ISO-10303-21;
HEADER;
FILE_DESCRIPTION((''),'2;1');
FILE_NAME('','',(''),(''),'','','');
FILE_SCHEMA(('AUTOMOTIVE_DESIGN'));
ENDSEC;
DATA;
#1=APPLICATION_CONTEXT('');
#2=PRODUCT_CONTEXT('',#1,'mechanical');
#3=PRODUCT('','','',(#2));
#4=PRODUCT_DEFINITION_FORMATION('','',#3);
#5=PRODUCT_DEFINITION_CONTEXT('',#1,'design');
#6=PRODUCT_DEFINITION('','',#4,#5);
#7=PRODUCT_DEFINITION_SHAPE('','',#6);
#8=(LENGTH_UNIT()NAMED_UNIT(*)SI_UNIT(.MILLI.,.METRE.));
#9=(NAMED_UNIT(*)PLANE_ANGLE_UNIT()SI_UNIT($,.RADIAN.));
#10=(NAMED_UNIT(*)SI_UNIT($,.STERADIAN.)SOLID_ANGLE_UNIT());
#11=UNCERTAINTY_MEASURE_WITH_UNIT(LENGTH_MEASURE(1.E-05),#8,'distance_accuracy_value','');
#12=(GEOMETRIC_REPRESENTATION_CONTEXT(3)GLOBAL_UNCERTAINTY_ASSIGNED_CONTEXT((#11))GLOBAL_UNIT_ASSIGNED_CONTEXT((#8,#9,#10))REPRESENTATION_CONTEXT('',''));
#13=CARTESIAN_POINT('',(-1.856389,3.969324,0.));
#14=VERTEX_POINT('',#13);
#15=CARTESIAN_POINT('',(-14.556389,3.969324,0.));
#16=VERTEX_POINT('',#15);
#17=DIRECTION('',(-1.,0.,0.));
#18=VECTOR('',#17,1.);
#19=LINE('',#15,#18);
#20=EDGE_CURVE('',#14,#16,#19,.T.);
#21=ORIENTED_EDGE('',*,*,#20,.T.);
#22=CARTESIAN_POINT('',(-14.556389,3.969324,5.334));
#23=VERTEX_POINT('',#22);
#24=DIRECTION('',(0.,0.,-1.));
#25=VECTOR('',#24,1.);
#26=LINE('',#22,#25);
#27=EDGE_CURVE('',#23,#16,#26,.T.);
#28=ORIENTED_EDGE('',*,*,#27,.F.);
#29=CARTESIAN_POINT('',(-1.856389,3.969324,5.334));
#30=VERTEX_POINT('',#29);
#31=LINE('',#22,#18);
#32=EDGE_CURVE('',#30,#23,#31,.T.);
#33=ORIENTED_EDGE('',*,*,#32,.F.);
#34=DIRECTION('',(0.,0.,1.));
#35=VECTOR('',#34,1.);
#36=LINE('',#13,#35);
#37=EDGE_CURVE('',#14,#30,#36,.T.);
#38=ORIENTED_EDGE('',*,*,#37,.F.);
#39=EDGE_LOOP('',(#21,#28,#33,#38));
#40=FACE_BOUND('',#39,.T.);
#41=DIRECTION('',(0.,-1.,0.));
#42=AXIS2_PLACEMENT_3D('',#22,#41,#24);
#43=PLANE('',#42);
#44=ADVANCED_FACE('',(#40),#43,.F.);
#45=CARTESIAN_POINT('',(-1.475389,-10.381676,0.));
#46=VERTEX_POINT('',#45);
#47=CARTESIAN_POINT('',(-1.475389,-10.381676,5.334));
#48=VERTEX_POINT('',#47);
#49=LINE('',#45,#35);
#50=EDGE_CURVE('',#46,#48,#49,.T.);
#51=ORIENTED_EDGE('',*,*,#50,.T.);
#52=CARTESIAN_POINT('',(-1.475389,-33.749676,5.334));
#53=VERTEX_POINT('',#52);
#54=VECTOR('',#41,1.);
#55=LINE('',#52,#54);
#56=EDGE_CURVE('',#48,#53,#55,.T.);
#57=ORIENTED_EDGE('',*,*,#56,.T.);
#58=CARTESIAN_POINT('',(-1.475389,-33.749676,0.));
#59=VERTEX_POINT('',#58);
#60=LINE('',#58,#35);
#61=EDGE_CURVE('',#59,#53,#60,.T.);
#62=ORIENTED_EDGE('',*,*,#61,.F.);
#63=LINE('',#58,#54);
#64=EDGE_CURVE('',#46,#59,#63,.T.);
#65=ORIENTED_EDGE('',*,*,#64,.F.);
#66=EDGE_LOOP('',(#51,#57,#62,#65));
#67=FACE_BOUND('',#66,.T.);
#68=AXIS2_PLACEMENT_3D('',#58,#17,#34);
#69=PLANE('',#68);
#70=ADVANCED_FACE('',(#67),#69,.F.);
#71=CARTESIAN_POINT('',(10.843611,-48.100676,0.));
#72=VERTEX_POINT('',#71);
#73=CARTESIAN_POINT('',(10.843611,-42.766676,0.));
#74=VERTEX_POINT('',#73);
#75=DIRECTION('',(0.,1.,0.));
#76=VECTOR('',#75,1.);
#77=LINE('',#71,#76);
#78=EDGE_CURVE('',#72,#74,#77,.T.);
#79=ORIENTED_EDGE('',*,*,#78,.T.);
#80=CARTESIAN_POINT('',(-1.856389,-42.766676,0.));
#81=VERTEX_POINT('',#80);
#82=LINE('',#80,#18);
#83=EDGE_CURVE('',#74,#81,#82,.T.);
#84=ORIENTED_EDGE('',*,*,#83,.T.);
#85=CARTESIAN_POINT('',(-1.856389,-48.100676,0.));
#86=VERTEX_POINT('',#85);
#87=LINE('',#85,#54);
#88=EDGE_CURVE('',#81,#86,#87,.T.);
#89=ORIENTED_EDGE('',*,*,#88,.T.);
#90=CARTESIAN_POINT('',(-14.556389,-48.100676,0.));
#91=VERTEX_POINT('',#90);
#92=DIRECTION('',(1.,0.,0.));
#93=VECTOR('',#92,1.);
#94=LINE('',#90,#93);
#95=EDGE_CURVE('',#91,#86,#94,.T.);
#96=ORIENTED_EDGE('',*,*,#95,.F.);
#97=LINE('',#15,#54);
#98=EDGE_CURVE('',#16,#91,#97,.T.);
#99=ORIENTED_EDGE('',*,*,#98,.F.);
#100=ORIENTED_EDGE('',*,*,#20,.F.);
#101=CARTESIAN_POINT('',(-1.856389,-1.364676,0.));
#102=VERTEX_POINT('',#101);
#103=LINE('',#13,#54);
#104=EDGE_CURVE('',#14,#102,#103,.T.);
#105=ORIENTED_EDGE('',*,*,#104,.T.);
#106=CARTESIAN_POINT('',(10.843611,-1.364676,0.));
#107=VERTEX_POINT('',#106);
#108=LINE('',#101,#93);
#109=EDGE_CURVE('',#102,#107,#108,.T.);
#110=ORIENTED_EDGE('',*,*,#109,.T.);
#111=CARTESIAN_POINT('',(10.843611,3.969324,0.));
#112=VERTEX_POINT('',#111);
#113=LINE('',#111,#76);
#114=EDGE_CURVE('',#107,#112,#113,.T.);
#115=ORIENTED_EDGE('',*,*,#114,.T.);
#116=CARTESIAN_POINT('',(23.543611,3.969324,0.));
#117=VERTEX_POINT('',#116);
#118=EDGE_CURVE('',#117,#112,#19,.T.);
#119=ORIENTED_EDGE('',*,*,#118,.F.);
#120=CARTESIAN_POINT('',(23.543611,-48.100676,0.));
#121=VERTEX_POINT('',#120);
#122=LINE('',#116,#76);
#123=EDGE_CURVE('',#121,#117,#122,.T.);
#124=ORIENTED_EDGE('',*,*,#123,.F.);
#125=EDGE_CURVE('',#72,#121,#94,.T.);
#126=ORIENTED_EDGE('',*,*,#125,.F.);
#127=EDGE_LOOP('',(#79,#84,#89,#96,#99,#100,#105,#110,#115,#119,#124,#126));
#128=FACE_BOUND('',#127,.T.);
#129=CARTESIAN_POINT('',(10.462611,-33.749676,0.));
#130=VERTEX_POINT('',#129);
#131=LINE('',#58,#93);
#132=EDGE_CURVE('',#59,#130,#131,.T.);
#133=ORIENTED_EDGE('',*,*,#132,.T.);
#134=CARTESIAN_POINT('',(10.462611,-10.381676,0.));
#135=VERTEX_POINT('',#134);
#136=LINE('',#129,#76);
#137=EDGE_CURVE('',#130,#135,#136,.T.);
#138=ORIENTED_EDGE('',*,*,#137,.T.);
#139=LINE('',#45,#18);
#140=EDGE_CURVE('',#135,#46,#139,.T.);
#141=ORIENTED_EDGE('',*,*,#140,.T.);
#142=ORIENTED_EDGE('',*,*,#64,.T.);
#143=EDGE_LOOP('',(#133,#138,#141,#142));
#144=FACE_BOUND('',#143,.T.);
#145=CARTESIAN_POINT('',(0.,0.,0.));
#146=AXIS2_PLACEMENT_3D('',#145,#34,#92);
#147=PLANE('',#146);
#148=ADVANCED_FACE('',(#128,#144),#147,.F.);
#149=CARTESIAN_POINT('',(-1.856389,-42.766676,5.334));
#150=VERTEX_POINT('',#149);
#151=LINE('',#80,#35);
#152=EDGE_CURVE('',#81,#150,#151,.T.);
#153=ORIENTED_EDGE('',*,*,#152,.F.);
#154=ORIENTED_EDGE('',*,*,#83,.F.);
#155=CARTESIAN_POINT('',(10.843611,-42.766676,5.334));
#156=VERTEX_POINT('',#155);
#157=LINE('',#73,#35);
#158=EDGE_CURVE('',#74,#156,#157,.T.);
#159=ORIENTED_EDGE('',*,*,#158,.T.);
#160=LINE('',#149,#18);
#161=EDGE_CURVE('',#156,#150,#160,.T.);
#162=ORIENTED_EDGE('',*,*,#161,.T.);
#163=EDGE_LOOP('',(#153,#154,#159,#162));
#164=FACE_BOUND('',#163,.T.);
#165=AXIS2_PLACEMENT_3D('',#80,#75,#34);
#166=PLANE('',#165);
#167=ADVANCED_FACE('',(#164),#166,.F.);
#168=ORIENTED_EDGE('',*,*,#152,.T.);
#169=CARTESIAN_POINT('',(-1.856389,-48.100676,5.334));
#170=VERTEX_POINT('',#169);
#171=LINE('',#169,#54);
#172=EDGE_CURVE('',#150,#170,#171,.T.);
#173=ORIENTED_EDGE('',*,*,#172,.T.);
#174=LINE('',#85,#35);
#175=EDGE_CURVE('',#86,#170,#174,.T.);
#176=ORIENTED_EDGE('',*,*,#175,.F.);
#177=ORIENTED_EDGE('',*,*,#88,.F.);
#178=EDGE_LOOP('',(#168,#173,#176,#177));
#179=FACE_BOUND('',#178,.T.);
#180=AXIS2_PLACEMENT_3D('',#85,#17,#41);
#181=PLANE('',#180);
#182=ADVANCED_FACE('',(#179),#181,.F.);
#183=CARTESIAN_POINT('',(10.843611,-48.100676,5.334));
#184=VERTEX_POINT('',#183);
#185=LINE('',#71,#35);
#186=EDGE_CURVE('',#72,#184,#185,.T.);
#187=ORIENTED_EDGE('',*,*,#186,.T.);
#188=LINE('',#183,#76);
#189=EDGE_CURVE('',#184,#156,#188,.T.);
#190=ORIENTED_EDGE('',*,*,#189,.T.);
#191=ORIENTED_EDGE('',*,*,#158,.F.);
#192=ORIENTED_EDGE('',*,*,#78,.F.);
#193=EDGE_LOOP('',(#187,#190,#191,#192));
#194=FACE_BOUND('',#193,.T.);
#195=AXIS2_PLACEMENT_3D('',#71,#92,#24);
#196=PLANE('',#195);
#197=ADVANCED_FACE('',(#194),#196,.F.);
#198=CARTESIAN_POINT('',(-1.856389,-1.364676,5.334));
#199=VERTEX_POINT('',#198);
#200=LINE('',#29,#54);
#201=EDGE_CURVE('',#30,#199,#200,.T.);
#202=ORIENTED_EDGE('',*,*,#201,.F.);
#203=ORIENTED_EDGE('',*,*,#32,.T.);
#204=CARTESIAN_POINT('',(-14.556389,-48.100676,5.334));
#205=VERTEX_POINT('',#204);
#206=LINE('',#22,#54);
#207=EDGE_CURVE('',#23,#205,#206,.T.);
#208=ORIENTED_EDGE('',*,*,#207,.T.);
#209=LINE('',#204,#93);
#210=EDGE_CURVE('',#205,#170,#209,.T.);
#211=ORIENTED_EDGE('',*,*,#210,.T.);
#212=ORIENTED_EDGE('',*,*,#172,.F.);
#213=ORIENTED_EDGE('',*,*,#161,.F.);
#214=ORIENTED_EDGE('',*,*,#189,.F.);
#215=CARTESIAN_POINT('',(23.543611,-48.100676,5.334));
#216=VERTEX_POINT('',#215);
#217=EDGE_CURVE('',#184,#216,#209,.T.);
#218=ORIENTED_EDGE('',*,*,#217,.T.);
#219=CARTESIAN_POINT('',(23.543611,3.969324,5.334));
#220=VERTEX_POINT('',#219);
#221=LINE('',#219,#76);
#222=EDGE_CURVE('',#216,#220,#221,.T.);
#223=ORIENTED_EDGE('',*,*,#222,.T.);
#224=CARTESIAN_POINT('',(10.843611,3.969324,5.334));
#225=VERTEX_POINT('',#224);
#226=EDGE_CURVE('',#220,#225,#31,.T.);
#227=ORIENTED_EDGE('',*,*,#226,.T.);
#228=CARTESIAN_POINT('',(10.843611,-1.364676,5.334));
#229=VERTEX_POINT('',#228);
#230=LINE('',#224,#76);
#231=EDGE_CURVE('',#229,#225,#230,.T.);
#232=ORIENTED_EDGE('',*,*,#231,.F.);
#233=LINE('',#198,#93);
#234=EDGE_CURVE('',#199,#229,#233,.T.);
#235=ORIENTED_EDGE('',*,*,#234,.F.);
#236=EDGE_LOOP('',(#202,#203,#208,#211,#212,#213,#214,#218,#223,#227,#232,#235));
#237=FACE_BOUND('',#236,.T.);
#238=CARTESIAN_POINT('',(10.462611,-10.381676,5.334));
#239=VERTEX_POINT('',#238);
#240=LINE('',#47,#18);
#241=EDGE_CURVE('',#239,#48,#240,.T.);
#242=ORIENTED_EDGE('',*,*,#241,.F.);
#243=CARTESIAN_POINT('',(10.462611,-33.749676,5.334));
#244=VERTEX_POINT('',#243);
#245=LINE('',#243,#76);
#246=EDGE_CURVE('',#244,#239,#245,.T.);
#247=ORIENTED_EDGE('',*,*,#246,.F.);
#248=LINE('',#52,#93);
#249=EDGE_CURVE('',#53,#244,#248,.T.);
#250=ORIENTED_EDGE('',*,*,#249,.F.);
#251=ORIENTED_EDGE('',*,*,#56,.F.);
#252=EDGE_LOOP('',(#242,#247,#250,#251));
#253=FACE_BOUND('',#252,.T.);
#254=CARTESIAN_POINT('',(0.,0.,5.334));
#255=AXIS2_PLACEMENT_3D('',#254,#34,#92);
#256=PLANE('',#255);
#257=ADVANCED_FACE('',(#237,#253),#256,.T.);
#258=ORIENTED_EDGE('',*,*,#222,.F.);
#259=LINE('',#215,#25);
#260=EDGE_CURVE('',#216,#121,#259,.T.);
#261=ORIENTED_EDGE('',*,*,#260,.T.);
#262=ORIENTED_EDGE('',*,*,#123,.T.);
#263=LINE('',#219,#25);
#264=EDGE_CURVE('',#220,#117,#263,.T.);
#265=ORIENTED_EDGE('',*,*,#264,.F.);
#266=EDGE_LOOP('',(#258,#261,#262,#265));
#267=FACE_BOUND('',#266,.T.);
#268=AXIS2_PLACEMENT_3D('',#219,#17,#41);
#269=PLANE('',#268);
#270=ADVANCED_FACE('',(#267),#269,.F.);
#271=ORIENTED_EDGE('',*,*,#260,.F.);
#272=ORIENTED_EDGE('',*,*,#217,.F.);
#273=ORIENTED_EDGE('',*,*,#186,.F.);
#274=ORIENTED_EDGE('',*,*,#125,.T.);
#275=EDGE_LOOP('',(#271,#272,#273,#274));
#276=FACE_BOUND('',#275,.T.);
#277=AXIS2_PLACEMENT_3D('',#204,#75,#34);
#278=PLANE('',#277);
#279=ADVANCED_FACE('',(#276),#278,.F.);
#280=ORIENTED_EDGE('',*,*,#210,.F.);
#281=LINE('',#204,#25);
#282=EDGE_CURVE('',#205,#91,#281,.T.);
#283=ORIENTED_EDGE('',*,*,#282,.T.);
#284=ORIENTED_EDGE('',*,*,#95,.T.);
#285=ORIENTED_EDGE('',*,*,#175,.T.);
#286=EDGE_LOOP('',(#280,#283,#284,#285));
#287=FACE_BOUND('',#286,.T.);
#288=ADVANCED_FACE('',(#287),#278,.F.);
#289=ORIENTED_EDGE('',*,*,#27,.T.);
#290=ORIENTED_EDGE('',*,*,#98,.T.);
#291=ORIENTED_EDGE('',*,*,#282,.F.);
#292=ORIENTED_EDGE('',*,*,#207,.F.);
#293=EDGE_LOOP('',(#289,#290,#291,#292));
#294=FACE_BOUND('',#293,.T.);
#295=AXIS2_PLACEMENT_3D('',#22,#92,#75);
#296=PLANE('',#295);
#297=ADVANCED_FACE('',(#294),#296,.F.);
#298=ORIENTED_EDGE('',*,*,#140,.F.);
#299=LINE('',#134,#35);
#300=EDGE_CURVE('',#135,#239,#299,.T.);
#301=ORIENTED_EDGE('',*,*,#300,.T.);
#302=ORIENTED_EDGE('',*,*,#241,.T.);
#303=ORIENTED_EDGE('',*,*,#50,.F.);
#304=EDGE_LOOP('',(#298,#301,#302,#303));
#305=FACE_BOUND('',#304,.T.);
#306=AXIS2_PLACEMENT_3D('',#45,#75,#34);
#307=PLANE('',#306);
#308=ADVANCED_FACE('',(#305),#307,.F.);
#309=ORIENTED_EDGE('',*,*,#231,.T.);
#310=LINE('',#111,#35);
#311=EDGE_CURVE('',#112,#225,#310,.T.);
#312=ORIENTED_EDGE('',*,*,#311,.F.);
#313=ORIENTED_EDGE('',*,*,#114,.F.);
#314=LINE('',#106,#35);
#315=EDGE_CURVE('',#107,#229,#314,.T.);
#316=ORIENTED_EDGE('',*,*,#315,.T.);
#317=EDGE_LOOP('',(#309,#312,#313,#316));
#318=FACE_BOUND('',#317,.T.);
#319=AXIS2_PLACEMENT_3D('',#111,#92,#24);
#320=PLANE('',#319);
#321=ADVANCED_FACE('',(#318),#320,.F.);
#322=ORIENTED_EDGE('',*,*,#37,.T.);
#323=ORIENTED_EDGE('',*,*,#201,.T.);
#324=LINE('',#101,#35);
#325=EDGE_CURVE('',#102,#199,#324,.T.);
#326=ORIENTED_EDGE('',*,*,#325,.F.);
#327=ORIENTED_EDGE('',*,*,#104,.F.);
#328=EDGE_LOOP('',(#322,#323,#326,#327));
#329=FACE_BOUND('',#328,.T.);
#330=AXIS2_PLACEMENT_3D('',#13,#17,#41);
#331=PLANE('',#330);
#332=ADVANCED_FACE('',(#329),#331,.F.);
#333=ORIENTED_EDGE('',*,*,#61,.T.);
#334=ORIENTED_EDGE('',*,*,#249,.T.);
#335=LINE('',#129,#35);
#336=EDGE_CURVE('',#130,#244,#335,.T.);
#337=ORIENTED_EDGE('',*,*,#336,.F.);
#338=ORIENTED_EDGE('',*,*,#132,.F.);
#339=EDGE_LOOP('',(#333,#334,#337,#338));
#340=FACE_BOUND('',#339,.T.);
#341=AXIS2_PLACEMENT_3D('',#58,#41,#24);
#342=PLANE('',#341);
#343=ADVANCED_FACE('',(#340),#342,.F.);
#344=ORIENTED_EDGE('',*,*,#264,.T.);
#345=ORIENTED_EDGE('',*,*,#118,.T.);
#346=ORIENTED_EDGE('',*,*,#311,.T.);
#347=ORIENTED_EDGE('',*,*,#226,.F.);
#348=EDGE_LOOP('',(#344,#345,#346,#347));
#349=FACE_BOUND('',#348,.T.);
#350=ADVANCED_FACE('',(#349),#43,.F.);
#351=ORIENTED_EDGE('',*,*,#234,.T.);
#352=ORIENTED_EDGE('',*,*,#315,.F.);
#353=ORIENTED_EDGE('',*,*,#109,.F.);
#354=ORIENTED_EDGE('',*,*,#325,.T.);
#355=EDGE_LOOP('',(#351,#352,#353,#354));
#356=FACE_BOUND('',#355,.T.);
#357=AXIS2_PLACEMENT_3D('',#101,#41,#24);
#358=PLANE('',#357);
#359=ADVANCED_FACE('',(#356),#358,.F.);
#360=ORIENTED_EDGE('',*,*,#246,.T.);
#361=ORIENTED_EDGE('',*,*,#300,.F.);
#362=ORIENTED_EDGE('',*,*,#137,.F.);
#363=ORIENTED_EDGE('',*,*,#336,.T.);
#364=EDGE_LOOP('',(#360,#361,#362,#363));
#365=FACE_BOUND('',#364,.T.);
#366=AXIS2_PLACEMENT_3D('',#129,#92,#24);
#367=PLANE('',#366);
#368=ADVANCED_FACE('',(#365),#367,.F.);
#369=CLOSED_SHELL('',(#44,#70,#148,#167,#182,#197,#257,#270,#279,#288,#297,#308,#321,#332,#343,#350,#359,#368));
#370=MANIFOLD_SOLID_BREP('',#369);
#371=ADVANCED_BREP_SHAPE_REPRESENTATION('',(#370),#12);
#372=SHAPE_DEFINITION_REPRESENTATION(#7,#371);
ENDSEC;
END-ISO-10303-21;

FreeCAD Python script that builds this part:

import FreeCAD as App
import Part
import Sketcher
Q = App.Units.Quantity


def add_polygon(sketch, points):
    """Adds a closed chain of lines whose ends are joined by coincident constraints."""
    first, n = sketch.GeometryCount, len(points)
    for a, b in zip(points, points[1:] + points[:1]):
        sketch.addGeometry(Part.LineSegment(App.Vector(*a, 0), App.Vector(*b, 0)), False)
    for i in range(n):
        sketch.addConstraint(Sketcher.Constraint("Coincident", first + i, 2, first + (i + 1) % n, 1))

doc = App.newDocument("Part")
body = doc.addObject("PartDesign::Body", "Body")

# Sketch on XY plane
sketch1 = doc.addObject("Sketcher::SketchObject", "Sketch")
body.addObject(sketch1)
sketch1.AttachmentSupport = (doc.XY_Plane, [""])
sketch1.MapMode = "FlatFace"
add_polygon(sketch1, [(-15, 4), (-15, -48), (24, -48), (24, 4)])  # lines 0-3
sketch1.addConstraint([
    Sketcher.Constraint("Vertical", 0),
    Sketcher.Constraint("Horizontal", 1),
    Sketcher.Constraint("Vertical", 2),
    Sketcher.Constraint("Horizontal", 3),
    Sketcher.Constraint("DistanceX", 1, 1, 1, 2, Q("1.5 in")),
    Sketcher.Constraint("DistanceY", 0, 2, 0, 1, Q("2.05 in")),
    Sketcher.Constraint("DistanceX", 0, 2, -1, 1, 14.556389),
    Sketcher.Constraint("DistanceY", 0, 2, -1, 1, 48.100676),
])
pad1 = doc.addObject("PartDesign::Pad", "Pad")
body.addObject(pad1)
pad1.Profile = sketch1
pad1.Length = Q("0.21 in")

# Sketch on XY plane
sketch2 = doc.addObject("Sketcher::SketchObject", "Sketch001")
body.addObject(sketch2)
sketch2.AttachmentSupport = (doc.XY_Plane, [""])
sketch2.MapMode = "FlatFace"
sketch2.AttachmentOffset = App.Placement(App.Vector(0, 0, 0.21 * 25.4), App.Rotation())
add_polygon(sketch2, [(-1, -10), (-1, -34), (10, -34), (10, -10)])  # lines 0-3
sketch2.addConstraint([
    Sketcher.Constraint("Vertical", 0),
    Sketcher.Constraint("Horizontal", 1),
    Sketcher.Constraint("Vertical", 2),
    Sketcher.Constraint("Horizontal", 3),
    Sketcher.Constraint("DistanceX", 1, 1, 1, 2, Q("0.47 in")),
    Sketcher.Constraint("DistanceY", 0, 2, 0, 1, Q("0.92 in")),
    Sketcher.Constraint("DistanceX", 0, 2, -1, 1, 1.475389),
    Sketcher.Constraint("DistanceY", 0, 2, -1, 1, 33.749676),
])
pocket1 = doc.addObject("PartDesign::Pocket", "Pocket")
body.addObject(pocket1)
pocket1.Profile = sketch2
pocket1.Type = "ThroughAll"

# Sketch on XY plane
sketch3 = doc.addObject("Sketcher::SketchObject", "Sketch002")
body.addObject(sketch3)
sketch3.AttachmentSupport = (doc.XY_Plane, [""])
sketch3.MapMode = "FlatFace"
sketch3.AttachmentOffset = App.Placement(App.Vector(0, 0, 0.21 * 25.4), App.Rotation())
add_polygon(sketch3, [(-2, 4), (-2, -1), (11, -1), (11, 4)])  # lines 0-3
add_polygon(sketch3, [(-2, -43), (-2, -48), (11, -48), (11, -43)])  # lines 4-7
sketch3.addConstraint([
    Sketcher.Constraint("Vertical", 0),
    Sketcher.Constraint("Horizontal", 1),
    Sketcher.Constraint("Vertical", 2),
    Sketcher.Constraint("Horizontal", 3),
    Sketcher.Constraint("Vertical", 4),
    Sketcher.Constraint("Horizontal", 5),
    Sketcher.Constraint("Vertical", 6),
    Sketcher.Constraint("Horizontal", 7),
    Sketcher.Constraint("Vertical", 3, 2, 4, 2),
    Sketcher.Constraint("Vertical", 2, 2, 5, 2),
    Sketcher.Constraint("Equal", 2, 4),
    Sketcher.Constraint("DistanceX", 1, 1, 1, 2, Q("0.5 in")),
    Sketcher.Constraint("DistanceY", 0, 2, 0, 1, Q("0.21 in")),
    Sketcher.Constraint("DistanceY", 4, 2, 0, 2, Q("1.84 in")),
    Sketcher.Constraint("DistanceX", 0, 2, -1, 1, 1.856389),
    Sketcher.Constraint("DistanceY", 0, 2, -1, 1, 1.364676),
])
pocket2 = doc.addObject("PartDesign::Pocket", "Pocket001")
body.addObject(pocket2)
pocket2.Profile = sketch3
pocket2.Type = "ThroughAll"

doc.recompute()
